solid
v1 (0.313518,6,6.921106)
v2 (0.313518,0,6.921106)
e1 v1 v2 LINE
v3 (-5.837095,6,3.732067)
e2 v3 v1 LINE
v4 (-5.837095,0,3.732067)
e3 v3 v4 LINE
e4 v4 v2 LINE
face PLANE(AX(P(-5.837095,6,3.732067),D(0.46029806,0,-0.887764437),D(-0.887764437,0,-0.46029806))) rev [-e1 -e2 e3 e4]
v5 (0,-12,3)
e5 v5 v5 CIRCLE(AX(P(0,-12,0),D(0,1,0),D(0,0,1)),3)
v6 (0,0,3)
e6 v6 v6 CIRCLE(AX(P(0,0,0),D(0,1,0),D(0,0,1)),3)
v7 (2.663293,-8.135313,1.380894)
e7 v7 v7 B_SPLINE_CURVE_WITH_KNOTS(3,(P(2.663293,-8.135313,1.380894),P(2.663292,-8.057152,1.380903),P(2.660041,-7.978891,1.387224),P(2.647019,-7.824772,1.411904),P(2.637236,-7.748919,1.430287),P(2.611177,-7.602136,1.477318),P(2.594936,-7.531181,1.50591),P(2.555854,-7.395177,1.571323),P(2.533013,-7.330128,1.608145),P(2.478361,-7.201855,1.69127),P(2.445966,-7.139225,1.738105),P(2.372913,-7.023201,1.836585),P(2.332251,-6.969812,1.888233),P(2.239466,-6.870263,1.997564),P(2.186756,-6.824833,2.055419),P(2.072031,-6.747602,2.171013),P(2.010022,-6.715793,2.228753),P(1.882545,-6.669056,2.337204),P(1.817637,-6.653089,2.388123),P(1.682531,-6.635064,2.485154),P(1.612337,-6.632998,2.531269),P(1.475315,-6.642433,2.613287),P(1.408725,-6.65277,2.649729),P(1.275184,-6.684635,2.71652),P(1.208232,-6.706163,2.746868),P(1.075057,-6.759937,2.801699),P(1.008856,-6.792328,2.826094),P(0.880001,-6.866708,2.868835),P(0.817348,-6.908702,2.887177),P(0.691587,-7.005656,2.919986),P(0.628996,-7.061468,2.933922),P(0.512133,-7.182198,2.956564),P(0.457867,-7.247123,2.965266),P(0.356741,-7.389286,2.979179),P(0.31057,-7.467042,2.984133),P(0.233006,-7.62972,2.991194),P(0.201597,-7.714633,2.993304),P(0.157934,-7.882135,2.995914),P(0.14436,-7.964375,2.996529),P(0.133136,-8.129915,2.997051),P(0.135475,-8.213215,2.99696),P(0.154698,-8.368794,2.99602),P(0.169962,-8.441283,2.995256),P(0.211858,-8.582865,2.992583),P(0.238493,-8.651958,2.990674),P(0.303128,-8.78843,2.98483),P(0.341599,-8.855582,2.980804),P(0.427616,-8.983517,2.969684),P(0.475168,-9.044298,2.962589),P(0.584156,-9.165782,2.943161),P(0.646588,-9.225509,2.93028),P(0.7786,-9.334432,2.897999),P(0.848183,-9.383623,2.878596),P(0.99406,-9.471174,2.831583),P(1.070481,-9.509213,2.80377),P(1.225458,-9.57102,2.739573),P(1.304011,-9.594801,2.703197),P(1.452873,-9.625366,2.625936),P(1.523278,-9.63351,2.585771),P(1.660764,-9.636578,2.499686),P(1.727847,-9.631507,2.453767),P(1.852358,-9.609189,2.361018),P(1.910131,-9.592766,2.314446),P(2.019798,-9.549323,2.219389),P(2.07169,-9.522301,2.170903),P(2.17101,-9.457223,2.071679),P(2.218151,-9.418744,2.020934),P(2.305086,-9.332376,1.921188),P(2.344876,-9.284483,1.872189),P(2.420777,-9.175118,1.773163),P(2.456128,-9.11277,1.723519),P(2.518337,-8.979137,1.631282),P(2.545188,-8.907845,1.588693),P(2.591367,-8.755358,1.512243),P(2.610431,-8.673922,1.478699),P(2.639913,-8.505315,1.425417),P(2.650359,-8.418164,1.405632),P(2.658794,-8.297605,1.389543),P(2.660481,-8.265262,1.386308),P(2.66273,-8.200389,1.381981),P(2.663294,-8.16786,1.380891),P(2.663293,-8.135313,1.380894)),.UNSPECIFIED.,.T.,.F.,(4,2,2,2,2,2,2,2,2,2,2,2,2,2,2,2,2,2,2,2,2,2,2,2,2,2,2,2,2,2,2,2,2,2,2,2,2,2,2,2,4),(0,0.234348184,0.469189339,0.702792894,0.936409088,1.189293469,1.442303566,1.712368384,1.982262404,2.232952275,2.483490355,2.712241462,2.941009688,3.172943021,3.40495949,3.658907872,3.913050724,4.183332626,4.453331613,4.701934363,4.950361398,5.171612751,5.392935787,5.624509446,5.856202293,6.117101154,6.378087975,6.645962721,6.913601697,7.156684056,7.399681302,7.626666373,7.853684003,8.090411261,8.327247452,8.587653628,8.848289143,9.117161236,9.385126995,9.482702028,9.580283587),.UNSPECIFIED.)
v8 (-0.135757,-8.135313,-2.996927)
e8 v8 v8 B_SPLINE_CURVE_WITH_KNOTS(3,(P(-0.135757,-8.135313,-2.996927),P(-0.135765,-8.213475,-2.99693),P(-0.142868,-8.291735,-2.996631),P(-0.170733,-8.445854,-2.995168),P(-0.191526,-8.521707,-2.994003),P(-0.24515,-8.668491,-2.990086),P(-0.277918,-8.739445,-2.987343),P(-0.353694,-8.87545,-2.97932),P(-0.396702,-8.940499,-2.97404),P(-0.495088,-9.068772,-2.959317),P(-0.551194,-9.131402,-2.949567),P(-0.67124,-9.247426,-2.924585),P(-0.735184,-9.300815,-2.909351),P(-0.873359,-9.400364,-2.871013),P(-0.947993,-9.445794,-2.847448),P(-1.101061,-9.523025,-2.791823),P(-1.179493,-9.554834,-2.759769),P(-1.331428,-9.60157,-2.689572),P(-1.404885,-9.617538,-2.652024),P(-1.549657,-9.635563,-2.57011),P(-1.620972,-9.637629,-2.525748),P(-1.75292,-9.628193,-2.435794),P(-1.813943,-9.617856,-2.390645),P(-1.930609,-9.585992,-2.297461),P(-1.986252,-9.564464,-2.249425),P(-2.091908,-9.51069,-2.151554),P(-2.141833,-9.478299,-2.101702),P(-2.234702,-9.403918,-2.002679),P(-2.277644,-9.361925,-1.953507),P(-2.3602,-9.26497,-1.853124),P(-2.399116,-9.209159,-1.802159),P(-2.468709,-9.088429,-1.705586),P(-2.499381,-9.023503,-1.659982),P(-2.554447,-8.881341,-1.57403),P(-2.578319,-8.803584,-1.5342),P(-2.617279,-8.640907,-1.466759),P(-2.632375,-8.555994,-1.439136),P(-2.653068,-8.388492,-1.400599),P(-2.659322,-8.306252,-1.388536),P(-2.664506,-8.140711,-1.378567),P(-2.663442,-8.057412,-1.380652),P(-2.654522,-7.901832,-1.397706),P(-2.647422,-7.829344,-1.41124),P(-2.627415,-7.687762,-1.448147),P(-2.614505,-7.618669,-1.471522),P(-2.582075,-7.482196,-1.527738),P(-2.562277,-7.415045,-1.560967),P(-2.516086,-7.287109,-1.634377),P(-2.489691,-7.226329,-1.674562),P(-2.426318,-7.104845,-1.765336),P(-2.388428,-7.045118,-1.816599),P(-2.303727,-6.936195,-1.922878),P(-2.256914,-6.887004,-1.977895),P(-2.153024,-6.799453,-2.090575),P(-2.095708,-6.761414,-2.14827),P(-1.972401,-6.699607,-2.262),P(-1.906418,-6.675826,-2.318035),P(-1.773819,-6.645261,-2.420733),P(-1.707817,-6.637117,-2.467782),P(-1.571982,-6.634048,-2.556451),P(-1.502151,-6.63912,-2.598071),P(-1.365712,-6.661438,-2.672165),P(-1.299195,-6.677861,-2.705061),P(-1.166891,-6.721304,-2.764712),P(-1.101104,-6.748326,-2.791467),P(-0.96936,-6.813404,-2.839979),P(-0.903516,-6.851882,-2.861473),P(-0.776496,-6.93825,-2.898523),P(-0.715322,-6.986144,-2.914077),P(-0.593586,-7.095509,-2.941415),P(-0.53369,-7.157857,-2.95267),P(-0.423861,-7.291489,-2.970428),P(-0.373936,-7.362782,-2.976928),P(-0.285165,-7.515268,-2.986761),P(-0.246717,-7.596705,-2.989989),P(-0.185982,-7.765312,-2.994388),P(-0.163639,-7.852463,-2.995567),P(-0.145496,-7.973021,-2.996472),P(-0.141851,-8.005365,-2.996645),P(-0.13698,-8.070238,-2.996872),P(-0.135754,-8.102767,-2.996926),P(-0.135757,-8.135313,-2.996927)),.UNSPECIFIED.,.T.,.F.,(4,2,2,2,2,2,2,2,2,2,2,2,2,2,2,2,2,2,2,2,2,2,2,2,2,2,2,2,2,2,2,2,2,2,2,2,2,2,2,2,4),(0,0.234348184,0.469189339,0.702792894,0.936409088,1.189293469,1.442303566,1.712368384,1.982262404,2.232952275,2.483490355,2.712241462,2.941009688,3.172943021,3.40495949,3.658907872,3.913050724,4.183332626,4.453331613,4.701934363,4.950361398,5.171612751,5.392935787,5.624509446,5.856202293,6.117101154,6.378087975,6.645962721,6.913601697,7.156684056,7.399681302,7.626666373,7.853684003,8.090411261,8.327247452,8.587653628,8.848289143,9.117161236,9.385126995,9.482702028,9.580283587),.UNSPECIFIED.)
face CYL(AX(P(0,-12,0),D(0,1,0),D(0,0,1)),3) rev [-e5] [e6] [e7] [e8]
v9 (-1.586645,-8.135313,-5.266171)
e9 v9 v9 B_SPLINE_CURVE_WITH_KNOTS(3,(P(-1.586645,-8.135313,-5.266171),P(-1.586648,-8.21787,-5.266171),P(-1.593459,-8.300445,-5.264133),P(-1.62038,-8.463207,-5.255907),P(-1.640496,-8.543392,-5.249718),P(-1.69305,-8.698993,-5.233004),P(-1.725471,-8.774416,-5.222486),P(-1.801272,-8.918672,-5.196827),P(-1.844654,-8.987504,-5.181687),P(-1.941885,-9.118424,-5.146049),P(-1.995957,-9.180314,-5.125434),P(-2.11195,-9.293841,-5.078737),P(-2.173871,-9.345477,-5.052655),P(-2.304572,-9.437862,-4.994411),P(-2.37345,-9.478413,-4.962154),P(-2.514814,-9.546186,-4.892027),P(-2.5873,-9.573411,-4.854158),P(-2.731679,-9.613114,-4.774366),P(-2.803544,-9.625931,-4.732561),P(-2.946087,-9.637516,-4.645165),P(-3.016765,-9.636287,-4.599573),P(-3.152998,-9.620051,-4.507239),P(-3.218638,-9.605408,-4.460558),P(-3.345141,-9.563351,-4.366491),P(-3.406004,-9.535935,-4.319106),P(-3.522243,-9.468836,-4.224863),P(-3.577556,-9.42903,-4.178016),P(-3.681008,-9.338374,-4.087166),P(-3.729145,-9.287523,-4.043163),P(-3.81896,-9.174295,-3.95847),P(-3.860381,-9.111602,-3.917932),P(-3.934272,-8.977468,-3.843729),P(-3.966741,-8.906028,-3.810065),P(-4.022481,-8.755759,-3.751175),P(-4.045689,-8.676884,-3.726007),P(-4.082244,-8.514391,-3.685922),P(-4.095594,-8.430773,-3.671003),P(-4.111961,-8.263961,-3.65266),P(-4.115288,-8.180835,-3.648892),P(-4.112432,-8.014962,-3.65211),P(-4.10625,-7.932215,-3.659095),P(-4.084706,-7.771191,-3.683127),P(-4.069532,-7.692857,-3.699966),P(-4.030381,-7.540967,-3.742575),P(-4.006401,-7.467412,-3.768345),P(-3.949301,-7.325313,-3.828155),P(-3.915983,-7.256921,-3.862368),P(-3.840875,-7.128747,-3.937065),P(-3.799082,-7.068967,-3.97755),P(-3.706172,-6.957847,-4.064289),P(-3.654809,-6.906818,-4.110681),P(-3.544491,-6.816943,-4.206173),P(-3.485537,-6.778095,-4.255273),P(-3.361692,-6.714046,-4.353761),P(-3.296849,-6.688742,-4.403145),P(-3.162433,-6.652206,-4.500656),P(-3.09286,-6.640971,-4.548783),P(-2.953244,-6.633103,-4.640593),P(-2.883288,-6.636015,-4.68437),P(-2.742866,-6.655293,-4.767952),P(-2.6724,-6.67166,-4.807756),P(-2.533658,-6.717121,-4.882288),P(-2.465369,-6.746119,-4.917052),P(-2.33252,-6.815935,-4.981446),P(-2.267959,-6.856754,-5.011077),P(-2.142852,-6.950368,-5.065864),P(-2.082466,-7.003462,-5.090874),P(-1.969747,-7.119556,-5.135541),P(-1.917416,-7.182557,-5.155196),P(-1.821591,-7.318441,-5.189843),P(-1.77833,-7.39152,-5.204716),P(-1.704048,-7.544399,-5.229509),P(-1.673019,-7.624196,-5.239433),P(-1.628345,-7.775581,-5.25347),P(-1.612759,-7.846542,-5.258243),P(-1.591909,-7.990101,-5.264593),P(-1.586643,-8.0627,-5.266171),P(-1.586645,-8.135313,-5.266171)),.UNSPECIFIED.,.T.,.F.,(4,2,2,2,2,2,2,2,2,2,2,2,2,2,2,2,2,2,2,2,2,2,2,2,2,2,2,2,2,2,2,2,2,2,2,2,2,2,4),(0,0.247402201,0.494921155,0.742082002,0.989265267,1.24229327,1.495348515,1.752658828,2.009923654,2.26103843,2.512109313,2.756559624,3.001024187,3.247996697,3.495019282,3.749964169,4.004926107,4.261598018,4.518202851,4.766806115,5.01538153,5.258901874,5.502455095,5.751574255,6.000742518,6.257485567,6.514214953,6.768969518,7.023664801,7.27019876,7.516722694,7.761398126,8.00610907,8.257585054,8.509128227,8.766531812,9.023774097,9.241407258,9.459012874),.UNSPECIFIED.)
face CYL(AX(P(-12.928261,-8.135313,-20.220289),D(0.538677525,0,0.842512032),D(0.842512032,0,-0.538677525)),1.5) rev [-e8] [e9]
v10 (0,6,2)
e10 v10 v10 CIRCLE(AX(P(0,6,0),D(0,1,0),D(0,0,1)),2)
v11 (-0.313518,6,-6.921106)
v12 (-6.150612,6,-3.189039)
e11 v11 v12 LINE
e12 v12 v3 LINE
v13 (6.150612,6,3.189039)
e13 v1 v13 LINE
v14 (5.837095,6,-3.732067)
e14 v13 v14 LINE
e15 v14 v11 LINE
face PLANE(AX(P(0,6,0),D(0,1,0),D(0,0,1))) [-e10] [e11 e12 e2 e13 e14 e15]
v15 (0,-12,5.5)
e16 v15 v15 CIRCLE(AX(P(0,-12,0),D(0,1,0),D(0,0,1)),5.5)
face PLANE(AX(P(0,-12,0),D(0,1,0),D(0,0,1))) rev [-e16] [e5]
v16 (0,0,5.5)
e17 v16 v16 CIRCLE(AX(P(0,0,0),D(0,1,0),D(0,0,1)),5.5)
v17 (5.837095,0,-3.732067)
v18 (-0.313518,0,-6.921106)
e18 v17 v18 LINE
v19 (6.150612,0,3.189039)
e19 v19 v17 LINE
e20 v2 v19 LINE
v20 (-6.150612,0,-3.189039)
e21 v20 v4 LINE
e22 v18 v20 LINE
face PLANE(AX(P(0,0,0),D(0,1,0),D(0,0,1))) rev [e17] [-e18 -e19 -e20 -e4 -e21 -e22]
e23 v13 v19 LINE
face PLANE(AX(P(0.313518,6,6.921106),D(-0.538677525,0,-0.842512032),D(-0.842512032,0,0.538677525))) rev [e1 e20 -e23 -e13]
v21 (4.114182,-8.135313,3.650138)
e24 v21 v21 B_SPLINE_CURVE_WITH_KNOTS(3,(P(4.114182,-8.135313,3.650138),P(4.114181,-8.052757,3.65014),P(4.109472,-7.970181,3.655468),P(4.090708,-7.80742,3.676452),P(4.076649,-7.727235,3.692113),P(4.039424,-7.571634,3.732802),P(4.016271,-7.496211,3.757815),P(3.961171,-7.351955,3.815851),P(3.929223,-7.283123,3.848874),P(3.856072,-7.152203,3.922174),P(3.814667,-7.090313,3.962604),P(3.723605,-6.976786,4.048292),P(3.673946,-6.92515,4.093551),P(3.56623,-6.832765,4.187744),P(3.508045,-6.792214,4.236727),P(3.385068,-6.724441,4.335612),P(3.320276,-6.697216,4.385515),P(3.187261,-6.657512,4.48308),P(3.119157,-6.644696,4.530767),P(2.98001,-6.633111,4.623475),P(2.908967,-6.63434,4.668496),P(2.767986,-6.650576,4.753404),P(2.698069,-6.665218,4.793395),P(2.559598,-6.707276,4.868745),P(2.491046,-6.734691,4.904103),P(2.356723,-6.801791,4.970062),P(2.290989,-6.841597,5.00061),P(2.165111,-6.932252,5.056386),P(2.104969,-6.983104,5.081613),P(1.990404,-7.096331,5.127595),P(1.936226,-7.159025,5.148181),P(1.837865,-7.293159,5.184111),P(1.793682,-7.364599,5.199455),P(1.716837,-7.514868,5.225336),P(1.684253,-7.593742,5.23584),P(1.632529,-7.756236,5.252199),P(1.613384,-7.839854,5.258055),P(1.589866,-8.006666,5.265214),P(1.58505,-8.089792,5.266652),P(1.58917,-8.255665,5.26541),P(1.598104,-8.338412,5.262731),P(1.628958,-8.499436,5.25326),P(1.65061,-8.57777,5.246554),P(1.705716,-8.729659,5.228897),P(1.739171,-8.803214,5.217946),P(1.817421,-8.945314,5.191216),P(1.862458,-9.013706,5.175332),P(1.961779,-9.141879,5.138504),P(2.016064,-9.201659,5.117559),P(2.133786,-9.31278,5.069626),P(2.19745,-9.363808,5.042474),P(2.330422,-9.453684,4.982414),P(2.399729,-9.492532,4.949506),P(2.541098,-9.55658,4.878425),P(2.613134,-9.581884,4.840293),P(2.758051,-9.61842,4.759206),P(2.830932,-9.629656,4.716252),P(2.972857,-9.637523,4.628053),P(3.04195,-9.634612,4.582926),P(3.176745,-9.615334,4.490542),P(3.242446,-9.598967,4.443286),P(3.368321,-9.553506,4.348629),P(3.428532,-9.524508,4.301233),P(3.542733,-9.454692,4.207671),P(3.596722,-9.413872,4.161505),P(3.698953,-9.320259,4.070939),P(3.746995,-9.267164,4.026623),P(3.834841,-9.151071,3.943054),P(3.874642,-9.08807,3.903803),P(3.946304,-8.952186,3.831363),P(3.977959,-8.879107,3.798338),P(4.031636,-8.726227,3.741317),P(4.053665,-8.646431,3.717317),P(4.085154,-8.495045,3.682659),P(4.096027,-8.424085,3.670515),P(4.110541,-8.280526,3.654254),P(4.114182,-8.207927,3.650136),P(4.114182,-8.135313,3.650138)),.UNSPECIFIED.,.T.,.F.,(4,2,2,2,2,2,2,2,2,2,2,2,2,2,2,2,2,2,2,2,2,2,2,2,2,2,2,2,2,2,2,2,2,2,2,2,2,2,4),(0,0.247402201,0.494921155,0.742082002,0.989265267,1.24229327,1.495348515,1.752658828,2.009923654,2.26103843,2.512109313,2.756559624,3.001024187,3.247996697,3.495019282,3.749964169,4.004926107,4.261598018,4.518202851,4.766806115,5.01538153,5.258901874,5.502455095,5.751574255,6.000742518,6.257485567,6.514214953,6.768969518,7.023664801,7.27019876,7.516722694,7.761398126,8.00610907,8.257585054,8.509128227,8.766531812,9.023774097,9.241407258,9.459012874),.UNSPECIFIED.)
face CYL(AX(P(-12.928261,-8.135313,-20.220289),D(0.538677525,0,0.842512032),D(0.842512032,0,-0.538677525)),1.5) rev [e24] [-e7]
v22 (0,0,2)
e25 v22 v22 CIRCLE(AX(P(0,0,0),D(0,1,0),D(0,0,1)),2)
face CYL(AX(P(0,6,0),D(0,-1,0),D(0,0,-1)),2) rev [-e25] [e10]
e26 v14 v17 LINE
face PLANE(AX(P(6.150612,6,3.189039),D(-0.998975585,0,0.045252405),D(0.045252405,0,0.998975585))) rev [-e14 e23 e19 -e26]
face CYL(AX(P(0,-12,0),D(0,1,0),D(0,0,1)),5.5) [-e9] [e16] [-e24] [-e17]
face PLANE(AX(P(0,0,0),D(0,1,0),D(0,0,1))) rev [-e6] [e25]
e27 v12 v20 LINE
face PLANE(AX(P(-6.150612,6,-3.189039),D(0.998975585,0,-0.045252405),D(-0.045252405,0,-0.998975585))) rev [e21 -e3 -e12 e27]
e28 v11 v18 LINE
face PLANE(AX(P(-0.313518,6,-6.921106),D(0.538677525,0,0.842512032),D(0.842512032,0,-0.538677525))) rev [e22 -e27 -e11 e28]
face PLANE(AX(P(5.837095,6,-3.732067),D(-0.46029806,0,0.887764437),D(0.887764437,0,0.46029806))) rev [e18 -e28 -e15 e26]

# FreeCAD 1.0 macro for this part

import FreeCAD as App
import Part
import Sketcher
Q = App.Units.Quantity

doc = App.newDocument("Part")
body = doc.addObject("PartDesign::Body", "Body")

# Sketch on XZ plane
sketch1 = body.newObject("Sketcher::SketchObject", "Sketch")
sketch1.AttachmentSupport = (doc.getObject("XZ_Plane"), [""])
sketch1.MapMode = "FlatFace"
sketch1.addGeometry([
    Part.LineSegment(App.Vector(5.8, -3.7, 0), App.Vector(-0.3, -6.9, 0)),  # 0
    Part.LineSegment(App.Vector(-0.3, -6.9, 0), App.Vector(-6.2, -3.2, 0)),  # 1
    Part.LineSegment(App.Vector(-6.2, -3.2, 0), App.Vector(-5.8, 3.7, 0)),  # 2
    Part.LineSegment(App.Vector(-5.8, 3.7, 0), App.Vector(0.3, 6.9, 0)),  # 3
    Part.LineSegment(App.Vector(0.3, 6.9, 0), App.Vector(6.2, 3.2, 0)),  # 4
    Part.LineSegment(App.Vector(6.2, 3.2, 0), App.Vector(5.8, -3.7, 0)),  # 5
    Part.Circle(App.Vector(0, 0, 0), App.Vector(0, 0, 1), 2),  # 6
], False)
sketch1.addConstraint([
    Sketcher.Constraint("Coincident", 0, 2, 1, 1),
    Sketcher.Constraint("Coincident", 1, 2, 2, 1),
    Sketcher.Constraint("Coincident", 2, 2, 3, 1),
    Sketcher.Constraint("Coincident", 3, 2, 4, 1),
    Sketcher.Constraint("Coincident", 4, 2, 5, 1),
    Sketcher.Constraint("Coincident", 5, 2, 0, 1),
    Sketcher.Constraint("Coincident", 6, 3, -1, 1),
    Sketcher.Constraint("Symmetric", 0, 2, 3, 2, -1, 1),
    Sketcher.Constraint("Symmetric", 1, 2, 4, 2, -1, 1),
    Sketcher.Constraint("Symmetric", 2, 2, 5, 2, -1, 1),
    Sketcher.Constraint("Equal", 0, 1),
    Sketcher.Constraint("Equal", 1, 2),
    Sketcher.Constraint("Diameter", 6, Q("4 mm")),
    Sketcher.Constraint("DistanceY", 1, 2, -1, 1, Q("3.189039 mm")),
    Sketcher.Constraint("DistanceY", 2, 2, 3, 2, Q("3.189039 mm")),
    Sketcher.Constraint("DistanceX", 1, 2, 3, 2, Q("6.46413 mm")),
    Sketcher.Constraint("DistanceY", 0, 2, 3, 2, Q("13.842212 mm")),
])
pad1 = body.newObject("PartDesign::Pad", "Pad")
pad1.Profile = sketch1
pad1.Length = 6
pad1.Reversed = True

# Sketch on XZ plane
sketch2 = body.newObject("Sketcher::SketchObject", "Sketch001")
sketch2.AttachmentSupport = (doc.getObject("XZ_Plane"), [""])
sketch2.MapMode = "FlatFace"
sketch2.addGeometry([
    Part.Circle(App.Vector(0, 0, 0), App.Vector(0, 0, 1), 5.5),
    Part.Circle(App.Vector(0, 0, 0), App.Vector(0, 0, 1), 3),
], False)
sketch2.addConstraint([
    Sketcher.Constraint("Coincident", 0, 3, -1, 1),
    Sketcher.Constraint("Coincident", 1, 3, -1, 1),
    Sketcher.Constraint("Diameter", 0, Q("11 mm")),
    Sketcher.Constraint("Diameter", 1, Q("6 mm")),
])
pad2 = body.newObject("PartDesign::Pad", "Pad001")
pad2.Profile = sketch2
pad2.Length = 12

# Sketch on an angled plane
sketch3 = body.newObject("Sketcher::SketchObject", "Sketch002")
sketch3.Placement = App.Placement(App.Vector(3.232065, 0, 5.055072), App.Rotation(App.Vector(0.842512032, 0, -0.538677525), App.Vector(0, 1, 0), App.Vector(0.538677525, 0, 0.842512032), "ZXY"))
sketch3.addGeometry(Part.Circle(App.Vector(0, -8.1, 0), App.Vector(0, 0, 1), 1.5), False)
sketch3.addConstraint([
    Sketcher.Constraint("PointOnObject", 0, 3, -2),
    Sketcher.Constraint("Diameter", 0, Q("3 mm")),
    Sketcher.Constraint("DistanceY", 0, 3, -1, 1, Q("8.135313 mm")),
])
pocket1 = body.newObject("PartDesign::Pocket", "Pocket")
pocket1.Profile = sketch3
pocket1.Length = 30

doc.recompute()
